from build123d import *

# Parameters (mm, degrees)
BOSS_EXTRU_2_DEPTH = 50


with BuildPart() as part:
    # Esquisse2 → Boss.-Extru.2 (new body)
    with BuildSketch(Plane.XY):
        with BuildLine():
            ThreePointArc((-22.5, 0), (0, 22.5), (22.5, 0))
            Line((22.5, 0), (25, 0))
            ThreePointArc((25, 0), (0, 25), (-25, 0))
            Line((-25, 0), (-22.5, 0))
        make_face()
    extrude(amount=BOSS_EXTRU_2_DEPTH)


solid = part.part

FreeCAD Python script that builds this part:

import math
import FreeCAD as App
import Part
import Sketcher

V = App.Vector
Q = App.Units.Quantity

doc = App.newDocument("Part")
body = doc.addObject("PartDesign::Body", "Body")

sketch1 = body.newObject("Sketcher::SketchObject", "Sketch")
sketch1.AttachmentSupport = (doc.getObject("XY_Plane"), [""])
sketch1.MapMode = "FlatFace"
sketch1.addGeometry(Part.ArcOfCircle(Part.Circle(V(0, 0, 0), V(0, 0, 1), 22.5), math.radians(0), math.radians(180)), False)
sketch1.addGeometry(Part.LineSegment(V(22.5, 0, 0), V(25, 0, 0)), False)
sketch1.addGeometry(Part.ArcOfCircle(Part.Circle(V(0, 0, 0), V(0, 0, 1), 25), math.radians(0), math.radians(180)), False)
sketch1.addGeometry(Part.LineSegment(V(-25, 0, 0), V(-22.5, 0, 0)), False)
sketch1.addConstraint(Sketcher.Constraint("Coincident", 0, 1, 1, 1))
sketch1.addConstraint(Sketcher.Constraint("Coincident", 1, 2, 2, 1))
sketch1.addConstraint(Sketcher.Constraint("Coincident", 2, 2, 3, 1))
sketch1.addConstraint(Sketcher.Constraint("Coincident", 3, 2, 0, 2))
sketch1.addConstraint(Sketcher.Constraint("Horizontal", 1))
sketch1.addConstraint(Sketcher.Constraint("Horizontal", 3))
sketch1.addConstraint(Sketcher.Constraint("Coincident", 0, 3, -1, 1))
sketch1.addConstraint(Sketcher.Constraint("Coincident", 2, 3, -1, 1))
sketch1.addConstraint(Sketcher.Constraint("PointOnObject", 0, 1, -1))
sketch1.addConstraint(Sketcher.Constraint("PointOnObject", 2, 2, -1))
sketch1.addConstraint(Sketcher.Constraint("Radius", 2, Q("25 mm")))
sketch1.addConstraint(Sketcher.Constraint("Radius", 0, Q("22.5 mm")))
pad1 = body.newObject("PartDesign::Pad", "Pad")
pad1.Profile = sketch1
pad1.Length = 50

doc.recompute()
